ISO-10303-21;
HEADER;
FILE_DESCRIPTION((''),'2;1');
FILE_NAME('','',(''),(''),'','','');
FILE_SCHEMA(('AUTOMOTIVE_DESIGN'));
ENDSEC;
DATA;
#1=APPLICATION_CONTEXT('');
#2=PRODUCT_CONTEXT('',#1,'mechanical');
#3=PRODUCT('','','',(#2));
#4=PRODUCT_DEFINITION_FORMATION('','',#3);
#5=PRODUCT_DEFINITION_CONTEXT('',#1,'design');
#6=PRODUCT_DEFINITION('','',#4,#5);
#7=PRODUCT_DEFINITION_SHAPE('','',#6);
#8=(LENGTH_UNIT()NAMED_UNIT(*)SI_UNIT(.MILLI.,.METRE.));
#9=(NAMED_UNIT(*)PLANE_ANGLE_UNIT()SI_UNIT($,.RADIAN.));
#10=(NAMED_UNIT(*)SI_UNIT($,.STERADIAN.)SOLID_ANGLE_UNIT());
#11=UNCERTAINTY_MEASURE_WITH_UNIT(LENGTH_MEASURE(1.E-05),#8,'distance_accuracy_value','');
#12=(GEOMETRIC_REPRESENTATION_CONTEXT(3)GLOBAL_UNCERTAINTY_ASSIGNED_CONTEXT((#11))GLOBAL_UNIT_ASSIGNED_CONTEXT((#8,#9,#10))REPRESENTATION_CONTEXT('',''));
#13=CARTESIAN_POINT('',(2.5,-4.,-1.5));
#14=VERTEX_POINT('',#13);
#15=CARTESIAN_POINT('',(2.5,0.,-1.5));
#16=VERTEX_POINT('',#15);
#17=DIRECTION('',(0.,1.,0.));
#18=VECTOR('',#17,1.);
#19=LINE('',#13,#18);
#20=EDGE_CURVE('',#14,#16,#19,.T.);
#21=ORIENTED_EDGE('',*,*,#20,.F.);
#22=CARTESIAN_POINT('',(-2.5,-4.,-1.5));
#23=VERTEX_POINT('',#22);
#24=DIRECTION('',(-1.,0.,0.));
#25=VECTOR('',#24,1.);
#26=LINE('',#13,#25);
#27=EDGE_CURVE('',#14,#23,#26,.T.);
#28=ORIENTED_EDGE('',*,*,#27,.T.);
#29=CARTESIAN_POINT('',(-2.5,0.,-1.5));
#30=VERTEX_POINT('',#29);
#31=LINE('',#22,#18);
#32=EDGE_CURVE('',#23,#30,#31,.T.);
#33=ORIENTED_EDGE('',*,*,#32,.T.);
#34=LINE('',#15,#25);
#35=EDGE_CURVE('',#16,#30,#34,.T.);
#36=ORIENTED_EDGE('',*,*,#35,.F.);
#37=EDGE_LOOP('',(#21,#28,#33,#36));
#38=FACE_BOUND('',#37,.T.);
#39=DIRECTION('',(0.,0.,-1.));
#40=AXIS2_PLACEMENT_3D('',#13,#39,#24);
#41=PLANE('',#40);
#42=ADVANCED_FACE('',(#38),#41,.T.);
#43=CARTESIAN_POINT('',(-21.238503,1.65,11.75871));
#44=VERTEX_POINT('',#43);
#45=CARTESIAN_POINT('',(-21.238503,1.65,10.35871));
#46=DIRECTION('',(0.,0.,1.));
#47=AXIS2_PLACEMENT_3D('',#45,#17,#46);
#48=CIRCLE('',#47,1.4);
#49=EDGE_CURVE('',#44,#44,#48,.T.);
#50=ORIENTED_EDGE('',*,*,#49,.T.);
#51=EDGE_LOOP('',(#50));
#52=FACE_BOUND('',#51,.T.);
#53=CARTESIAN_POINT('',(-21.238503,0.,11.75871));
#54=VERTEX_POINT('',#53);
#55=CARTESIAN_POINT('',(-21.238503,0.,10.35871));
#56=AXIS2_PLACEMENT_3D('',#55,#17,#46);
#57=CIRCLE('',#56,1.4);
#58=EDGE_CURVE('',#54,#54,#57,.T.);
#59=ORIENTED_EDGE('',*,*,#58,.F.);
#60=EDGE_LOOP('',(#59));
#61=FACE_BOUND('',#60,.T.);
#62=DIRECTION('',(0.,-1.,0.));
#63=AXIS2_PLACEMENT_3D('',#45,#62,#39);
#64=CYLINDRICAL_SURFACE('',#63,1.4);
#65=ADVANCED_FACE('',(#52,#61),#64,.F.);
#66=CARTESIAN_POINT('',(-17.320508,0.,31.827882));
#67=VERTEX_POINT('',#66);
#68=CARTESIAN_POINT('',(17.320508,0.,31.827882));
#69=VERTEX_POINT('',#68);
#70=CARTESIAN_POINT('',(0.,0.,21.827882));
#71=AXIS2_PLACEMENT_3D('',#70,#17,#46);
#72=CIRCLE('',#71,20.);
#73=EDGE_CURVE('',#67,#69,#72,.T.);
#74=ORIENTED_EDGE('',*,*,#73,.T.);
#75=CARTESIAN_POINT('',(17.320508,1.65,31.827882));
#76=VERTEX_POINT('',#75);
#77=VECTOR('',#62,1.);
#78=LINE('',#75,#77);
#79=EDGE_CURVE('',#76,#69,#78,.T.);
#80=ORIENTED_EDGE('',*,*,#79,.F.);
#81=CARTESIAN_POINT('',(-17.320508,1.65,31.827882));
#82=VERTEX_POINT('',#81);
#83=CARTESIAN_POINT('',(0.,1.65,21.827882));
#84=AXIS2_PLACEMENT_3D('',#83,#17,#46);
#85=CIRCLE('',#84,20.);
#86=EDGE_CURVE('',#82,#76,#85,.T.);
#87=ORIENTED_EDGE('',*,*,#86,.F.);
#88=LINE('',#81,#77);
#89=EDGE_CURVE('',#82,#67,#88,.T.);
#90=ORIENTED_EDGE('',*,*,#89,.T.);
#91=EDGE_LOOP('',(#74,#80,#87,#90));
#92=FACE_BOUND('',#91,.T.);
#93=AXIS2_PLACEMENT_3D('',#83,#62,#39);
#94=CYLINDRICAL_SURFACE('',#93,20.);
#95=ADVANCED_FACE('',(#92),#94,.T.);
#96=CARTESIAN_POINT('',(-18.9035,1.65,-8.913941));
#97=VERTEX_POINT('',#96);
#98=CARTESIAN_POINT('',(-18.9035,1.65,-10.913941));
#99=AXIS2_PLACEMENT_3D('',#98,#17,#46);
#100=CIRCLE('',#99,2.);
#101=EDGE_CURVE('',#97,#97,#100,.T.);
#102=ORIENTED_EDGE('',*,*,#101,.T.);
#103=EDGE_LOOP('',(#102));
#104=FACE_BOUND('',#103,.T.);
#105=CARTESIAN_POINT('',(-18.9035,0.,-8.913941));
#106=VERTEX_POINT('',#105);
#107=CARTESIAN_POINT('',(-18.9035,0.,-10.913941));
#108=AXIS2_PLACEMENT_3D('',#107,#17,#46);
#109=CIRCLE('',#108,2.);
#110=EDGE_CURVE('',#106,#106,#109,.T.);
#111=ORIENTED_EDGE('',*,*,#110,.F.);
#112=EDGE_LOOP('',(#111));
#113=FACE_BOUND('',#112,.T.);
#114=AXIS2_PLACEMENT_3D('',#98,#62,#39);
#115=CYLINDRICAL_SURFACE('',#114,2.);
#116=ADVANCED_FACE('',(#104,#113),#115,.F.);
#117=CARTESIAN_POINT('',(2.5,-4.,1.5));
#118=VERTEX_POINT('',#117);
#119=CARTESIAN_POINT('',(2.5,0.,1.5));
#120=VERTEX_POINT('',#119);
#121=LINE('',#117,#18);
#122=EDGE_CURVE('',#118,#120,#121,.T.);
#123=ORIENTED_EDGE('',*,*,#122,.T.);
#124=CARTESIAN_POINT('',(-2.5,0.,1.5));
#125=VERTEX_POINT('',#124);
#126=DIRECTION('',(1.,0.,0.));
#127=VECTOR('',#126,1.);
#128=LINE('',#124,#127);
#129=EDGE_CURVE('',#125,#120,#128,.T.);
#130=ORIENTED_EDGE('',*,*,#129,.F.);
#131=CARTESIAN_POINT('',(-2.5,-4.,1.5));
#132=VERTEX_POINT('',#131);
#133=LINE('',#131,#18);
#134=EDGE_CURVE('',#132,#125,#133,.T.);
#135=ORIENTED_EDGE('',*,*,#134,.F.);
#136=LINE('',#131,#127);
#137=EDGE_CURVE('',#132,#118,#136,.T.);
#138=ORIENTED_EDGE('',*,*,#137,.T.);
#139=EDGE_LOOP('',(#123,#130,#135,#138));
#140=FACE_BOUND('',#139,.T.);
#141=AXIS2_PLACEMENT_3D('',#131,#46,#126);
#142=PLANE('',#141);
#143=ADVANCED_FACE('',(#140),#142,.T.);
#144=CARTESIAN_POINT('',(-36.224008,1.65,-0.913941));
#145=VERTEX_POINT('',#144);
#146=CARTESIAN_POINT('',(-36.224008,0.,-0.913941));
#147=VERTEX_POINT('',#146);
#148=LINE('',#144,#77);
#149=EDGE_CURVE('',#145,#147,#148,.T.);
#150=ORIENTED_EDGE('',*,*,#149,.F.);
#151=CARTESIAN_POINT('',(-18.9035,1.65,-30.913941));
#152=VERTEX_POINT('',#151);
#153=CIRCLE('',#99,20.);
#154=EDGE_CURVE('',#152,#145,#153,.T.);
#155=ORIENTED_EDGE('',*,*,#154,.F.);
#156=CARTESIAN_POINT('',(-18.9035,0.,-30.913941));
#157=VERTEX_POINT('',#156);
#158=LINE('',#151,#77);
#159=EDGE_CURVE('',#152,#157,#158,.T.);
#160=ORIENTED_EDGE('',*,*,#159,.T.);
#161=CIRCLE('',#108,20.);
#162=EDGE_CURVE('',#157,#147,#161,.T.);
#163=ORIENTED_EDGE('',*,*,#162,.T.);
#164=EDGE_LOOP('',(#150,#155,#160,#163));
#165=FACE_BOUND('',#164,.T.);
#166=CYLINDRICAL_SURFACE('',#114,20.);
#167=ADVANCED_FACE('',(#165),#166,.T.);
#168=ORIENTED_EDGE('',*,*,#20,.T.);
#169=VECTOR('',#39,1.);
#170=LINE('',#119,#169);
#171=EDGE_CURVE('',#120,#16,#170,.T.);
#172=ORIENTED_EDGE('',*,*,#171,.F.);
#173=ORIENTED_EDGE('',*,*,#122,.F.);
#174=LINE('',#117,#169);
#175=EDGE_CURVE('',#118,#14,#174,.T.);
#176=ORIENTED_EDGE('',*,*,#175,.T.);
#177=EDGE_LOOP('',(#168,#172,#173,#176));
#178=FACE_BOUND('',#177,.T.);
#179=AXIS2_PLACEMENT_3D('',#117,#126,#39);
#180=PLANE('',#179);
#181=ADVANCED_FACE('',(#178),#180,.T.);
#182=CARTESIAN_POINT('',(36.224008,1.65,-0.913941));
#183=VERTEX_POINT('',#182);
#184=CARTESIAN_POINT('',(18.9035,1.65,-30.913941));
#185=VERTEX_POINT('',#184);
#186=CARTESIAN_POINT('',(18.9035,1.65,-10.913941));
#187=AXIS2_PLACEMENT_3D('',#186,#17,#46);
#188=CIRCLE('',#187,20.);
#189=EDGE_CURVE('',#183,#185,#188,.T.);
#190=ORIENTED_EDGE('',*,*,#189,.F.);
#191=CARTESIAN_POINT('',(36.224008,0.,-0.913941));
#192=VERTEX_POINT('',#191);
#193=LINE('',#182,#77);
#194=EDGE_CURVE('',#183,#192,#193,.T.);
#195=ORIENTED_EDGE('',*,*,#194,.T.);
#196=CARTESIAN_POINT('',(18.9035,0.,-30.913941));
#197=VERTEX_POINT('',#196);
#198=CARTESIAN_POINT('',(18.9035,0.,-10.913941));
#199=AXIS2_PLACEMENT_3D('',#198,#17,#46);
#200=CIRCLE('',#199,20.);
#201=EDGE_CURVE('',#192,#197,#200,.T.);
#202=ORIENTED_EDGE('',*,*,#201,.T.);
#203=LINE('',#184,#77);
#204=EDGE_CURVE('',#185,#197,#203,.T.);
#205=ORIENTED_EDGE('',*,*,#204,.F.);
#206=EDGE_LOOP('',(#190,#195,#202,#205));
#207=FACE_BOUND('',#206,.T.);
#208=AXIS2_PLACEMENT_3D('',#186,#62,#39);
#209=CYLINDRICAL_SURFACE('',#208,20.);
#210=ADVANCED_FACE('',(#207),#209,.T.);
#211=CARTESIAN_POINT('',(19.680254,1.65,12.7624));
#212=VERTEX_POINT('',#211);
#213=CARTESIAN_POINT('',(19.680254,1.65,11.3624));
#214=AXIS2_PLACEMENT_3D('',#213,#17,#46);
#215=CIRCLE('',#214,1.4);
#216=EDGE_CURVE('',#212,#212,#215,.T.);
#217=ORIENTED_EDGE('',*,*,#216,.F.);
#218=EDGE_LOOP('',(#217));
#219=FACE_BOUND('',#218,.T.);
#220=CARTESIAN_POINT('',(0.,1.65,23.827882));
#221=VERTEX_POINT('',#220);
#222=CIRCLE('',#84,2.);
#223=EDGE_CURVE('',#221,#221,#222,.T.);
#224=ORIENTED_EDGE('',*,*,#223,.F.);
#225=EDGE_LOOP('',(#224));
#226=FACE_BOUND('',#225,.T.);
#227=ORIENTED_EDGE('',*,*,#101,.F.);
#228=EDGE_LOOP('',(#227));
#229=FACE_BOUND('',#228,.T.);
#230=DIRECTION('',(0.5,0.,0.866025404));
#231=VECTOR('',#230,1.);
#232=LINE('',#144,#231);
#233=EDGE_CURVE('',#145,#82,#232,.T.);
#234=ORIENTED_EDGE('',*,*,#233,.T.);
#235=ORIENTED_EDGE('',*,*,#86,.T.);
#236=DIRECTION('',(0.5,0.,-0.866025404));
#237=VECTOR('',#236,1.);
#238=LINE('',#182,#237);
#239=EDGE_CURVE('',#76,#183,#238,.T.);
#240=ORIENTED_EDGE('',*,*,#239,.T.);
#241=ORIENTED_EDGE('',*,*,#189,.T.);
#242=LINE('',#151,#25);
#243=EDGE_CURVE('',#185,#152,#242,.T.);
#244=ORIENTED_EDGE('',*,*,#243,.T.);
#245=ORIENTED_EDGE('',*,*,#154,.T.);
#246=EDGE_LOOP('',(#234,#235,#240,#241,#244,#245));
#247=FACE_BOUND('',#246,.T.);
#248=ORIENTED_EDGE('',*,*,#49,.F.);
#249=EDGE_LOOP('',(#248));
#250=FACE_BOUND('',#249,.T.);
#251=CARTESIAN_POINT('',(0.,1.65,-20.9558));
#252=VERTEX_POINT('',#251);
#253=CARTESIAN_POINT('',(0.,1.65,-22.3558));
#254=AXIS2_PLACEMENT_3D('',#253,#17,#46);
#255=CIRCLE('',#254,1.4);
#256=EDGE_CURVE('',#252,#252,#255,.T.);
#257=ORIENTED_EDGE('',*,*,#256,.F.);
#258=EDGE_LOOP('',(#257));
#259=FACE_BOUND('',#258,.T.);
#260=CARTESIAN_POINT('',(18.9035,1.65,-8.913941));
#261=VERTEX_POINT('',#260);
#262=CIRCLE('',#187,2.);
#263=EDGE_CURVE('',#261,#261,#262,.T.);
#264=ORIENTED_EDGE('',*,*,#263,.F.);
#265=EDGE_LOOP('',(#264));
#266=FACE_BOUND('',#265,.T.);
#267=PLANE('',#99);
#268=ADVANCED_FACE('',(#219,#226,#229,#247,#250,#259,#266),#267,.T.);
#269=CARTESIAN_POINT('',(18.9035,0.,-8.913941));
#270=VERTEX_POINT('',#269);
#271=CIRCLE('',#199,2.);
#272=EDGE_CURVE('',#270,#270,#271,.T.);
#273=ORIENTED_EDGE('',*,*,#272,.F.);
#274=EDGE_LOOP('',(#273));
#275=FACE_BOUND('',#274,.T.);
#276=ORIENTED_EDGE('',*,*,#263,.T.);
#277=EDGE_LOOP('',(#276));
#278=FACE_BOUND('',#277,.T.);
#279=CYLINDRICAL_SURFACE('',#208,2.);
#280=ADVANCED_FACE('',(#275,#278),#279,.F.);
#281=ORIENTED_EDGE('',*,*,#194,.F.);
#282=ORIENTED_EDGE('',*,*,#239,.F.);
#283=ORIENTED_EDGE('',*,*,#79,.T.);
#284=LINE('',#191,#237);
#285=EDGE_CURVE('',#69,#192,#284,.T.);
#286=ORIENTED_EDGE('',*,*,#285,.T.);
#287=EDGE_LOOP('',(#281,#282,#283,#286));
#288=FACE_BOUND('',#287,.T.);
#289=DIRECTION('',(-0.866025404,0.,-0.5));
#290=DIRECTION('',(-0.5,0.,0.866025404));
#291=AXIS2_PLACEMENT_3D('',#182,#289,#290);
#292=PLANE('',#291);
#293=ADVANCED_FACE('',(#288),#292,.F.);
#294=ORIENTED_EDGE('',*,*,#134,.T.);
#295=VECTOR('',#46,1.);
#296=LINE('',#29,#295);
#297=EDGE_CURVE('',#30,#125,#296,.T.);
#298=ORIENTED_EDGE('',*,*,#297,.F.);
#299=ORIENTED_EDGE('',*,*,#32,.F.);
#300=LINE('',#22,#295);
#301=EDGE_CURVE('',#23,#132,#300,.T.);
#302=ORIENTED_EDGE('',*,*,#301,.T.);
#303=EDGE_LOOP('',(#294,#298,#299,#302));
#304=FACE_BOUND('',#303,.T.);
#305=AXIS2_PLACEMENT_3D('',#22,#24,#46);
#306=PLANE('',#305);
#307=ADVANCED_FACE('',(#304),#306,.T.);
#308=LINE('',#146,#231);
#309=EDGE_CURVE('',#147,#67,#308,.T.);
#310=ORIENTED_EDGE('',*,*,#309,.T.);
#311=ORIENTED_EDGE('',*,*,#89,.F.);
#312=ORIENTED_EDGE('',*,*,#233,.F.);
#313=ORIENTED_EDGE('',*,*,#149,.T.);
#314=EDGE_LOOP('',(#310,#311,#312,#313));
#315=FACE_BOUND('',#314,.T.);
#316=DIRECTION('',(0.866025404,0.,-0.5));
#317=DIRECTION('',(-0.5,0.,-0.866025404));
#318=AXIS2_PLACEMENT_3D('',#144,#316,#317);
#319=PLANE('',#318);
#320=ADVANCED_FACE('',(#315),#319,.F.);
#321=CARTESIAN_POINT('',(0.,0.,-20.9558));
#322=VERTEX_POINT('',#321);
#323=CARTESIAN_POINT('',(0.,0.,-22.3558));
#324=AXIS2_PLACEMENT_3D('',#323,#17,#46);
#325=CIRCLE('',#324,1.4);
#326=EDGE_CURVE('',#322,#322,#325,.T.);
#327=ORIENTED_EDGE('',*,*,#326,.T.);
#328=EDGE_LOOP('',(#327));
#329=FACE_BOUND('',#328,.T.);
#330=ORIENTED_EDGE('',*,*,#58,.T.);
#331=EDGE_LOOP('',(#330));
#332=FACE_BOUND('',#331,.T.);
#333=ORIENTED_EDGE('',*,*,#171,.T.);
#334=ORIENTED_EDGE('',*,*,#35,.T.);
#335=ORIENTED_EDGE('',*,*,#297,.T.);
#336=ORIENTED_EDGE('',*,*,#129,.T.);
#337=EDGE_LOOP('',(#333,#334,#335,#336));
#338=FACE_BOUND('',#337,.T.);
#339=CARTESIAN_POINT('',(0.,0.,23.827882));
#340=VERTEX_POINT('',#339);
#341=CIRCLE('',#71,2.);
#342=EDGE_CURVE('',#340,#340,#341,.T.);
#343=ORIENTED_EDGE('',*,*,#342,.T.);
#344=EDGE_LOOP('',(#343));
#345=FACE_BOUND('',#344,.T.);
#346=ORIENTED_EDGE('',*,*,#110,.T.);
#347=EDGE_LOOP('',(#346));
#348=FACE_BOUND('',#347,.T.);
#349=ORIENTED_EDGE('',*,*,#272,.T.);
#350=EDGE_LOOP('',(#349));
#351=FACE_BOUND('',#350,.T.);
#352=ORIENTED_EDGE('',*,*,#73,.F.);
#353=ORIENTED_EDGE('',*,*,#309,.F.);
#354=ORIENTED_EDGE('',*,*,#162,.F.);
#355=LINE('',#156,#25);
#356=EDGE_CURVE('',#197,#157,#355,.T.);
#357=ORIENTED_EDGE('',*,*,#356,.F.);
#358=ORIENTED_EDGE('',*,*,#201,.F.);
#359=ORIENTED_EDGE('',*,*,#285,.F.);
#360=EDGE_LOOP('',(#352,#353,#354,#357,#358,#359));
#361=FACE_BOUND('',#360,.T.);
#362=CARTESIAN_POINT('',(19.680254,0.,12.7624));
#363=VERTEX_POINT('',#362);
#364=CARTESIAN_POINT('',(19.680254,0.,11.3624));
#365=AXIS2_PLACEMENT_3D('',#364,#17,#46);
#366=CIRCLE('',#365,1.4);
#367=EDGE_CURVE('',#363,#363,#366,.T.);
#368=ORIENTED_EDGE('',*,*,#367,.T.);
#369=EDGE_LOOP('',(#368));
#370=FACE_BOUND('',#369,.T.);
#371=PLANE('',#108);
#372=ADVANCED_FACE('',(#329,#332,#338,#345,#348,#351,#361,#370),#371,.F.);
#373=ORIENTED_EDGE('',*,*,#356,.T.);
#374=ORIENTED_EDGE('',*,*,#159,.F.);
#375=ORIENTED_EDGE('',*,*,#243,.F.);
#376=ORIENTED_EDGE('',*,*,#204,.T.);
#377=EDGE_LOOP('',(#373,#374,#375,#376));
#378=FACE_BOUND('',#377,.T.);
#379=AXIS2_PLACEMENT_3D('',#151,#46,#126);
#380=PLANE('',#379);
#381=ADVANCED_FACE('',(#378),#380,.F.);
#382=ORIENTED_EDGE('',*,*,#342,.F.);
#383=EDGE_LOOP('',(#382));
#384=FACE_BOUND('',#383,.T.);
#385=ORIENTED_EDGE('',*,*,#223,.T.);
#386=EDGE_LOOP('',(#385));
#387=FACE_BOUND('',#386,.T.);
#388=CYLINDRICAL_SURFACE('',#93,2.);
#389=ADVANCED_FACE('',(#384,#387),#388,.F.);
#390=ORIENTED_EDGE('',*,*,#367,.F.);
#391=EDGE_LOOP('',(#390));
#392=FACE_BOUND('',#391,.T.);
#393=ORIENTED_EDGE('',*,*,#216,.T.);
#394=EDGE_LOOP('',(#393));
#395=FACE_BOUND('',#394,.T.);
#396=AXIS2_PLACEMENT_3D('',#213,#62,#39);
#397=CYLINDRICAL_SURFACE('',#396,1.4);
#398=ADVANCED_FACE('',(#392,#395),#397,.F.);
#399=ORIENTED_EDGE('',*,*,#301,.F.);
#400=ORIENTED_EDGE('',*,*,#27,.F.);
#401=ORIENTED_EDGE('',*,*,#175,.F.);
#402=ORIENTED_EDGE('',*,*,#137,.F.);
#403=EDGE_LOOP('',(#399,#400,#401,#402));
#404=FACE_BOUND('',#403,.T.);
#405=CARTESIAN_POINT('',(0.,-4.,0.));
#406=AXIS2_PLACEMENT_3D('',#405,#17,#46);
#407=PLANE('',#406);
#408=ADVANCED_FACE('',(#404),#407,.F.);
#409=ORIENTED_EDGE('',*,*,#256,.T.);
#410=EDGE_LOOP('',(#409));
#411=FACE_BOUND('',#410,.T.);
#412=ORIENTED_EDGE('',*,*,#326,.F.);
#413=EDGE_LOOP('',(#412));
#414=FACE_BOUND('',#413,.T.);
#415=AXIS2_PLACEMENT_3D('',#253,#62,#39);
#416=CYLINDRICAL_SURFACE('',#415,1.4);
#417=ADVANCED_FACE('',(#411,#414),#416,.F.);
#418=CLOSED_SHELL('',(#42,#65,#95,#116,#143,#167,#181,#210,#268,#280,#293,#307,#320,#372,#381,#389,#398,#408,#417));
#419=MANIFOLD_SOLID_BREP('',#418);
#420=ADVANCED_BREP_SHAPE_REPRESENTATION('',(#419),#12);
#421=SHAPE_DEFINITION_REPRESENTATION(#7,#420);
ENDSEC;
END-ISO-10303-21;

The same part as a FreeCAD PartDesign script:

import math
import FreeCAD as App
import Part
import Sketcher
Q = App.Units.Quantity

doc = App.newDocument("Part")
body = doc.addObject("PartDesign::Body", "Body")

# Sketch on XZ plane
sketch1 = doc.addObject("Sketcher::SketchObject", "Sketch")
body.addObject(sketch1)
sketch1.AttachmentSupport = (doc.XZ_Plane, [""])
sketch1.MapMode = "FlatFace"
sketch1.addGeometry([
    Part.LineSegment(App.Vector(17.3, 31.8, 0), App.Vector(36.2, -0.9, 0)),  # 0
    Part.ArcOfCircle(Part.Circle(App.Vector(18.9, -10.9, 0), App.Vector(0, 0, 1), 20), math.radians(-90), math.radians(30)),  # 1
    Part.LineSegment(App.Vector(18.9, -30.9, 0), App.Vector(-18.9, -30.9, 0)),  # 2
    Part.ArcOfCircle(Part.Circle(App.Vector(-18.9, -10.9, 0), App.Vector(0, 0, 1), 20), math.radians(150), math.radians(270)),  # 3
    Part.LineSegment(App.Vector(-36.2, -0.9, 0), App.Vector(-17.3, 31.8, 0)),  # 4
    Part.ArcOfCircle(Part.Circle(App.Vector(0, 21.8, 0), App.Vector(0, 0, 1), 20), math.radians(30), math.radians(150)),  # 5
    Part.Circle(App.Vector(0, 21.8, 0), App.Vector(0, 0, 1), 2),  # 6
    Part.Circle(App.Vector(19.7, 11.4, 0), App.Vector(0, 0, 1), 1.4),  # 7
    Part.Circle(App.Vector(-21.2, 10.4, 0), App.Vector(0, 0, 1), 1.4),  # 8
    Part.Circle(App.Vector(18.9, -10.9, 0), App.Vector(0, 0, 1), 2),  # 9
    Part.Circle(App.Vector(0, -22.4, 0), App.Vector(0, 0, 1), 1.4),  # 10
    Part.Circle(App.Vector(-18.9, -10.9, 0), App.Vector(0, 0, 1), 2),  # 11
], False)
sketch1.addConstraint([
    Sketcher.Constraint("Tangent", 0, 2, 1, 2),
    Sketcher.Constraint("Tangent", 1, 1, 2, 1),
    Sketcher.Constraint("Tangent", 2, 2, 3, 2),
    Sketcher.Constraint("Tangent", 3, 1, 4, 1),
    Sketcher.Constraint("Tangent", 4, 2, 5, 2),
    Sketcher.Constraint("Tangent", 5, 1, 0, 1),
    Sketcher.Constraint("Horizontal", 2),
    Sketcher.Constraint("Coincident", 6, 3, 5, 3),
    Sketcher.Constraint("Coincident", 9, 3, 1, 3),
    Sketcher.Constraint("Coincident", 11, 3, 3, 3),
    Sketcher.Constraint("Equal", 1, 3),
    Sketcher.Constraint("Equal", 3, 5),
    Sketcher.Constraint("Equal", 7, 8),
    Sketcher.Constraint("Equal", 6, 9),
    Sketcher.Constraint("Equal", 8, 10),
    Sketcher.Constraint("Equal", 9, 11),
    Sketcher.Constraint("Symmetric", 0, 2, 3, 1, -2),
    Sketcher.Constraint("PointOnObject", 10, 3, -2),
    Sketcher.Constraint("Diameter", 6, Q("4 mm")),
    Sketcher.Constraint("Radius", 1, Q("20 mm")),
    Sketcher.Constraint("Diameter", 7, Q("2.8 mm")),
    Sketcher.Constraint("Angle", 0, Q("-60 deg")),
    Sketcher.Constraint("DistanceX", 2, 2, 2, 1, Q("37.807 mm")),
    Sketcher.Constraint("DistanceY", -1, 1, 7, 3, Q("11.3624 mm")),
    Sketcher.Constraint("DistanceY", 10, 3, -1, 1, Q("22.3558 mm")),
    Sketcher.Constraint("DistanceY", 1, 3, -1, 1, Q("10.913941 mm")),
    Sketcher.Constraint("DistanceY", -1, 1, 8, 3, Q("10.35871 mm")),
    Sketcher.Constraint("DistanceX", -1, 1, 7, 3, Q("19.680254 mm")),
    Sketcher.Constraint("DistanceX", 8, 3, -1, 1, Q("21.238503 mm")),
])
pad1 = doc.addObject("PartDesign::Pad", "Pad")
body.addObject(pad1)
pad1.Profile = sketch1
pad1.Length = 1.65
pad1.Reversed = True

# Sketch on XZ plane
sketch2 = doc.addObject("Sketcher::SketchObject", "Sketch001")
body.addObject(sketch2)
sketch2.AttachmentSupport = (doc.XZ_Plane, [""])
sketch2.MapMode = "FlatFace"
sketch2.addGeometry([
    Part.LineSegment(App.Vector(-2.5, 1.5, 0), App.Vector(-2.5, -1.5, 0)),
    Part.LineSegment(App.Vector(-2.5, -1.5, 0), App.Vector(2.5, -1.5, 0)),
    Part.LineSegment(App.Vector(2.5, -1.5, 0), App.Vector(2.5, 1.5, 0)),
    Part.LineSegment(App.Vector(2.5, 1.5, 0), App.Vector(-2.5, 1.5, 0)),
], False)
sketch2.addConstraint([
    Sketcher.Constraint("Coincident", 0, 2, 1, 1),
    Sketcher.Constraint("Coincident", 1, 2, 2, 1),
    Sketcher.Constraint("Coincident", 2, 2, 3, 1),
    Sketcher.Constraint("Coincident", 3, 2, 0, 1),
    Sketcher.Constraint("Vertical", 0),
    Sketcher.Constraint("Horizontal", 1),
    Sketcher.Constraint("Vertical", 2),
    Sketcher.Constraint("Horizontal", 3),
    Sketcher.Constraint("Symmetric", 0, 2, 2, 2, -1, 1),
    Sketcher.Constraint("DistanceX", 1, 1, 1, 2, Q("5 mm")),
    Sketcher.Constraint("DistanceY", 0, 2, 0, 1, Q("3 mm")),
])
pad2 = doc.addObject("PartDesign::Pad", "Pad001")
body.addObject(pad2)
pad2.Profile = sketch2
pad2.Length = 4

doc.recompute()
